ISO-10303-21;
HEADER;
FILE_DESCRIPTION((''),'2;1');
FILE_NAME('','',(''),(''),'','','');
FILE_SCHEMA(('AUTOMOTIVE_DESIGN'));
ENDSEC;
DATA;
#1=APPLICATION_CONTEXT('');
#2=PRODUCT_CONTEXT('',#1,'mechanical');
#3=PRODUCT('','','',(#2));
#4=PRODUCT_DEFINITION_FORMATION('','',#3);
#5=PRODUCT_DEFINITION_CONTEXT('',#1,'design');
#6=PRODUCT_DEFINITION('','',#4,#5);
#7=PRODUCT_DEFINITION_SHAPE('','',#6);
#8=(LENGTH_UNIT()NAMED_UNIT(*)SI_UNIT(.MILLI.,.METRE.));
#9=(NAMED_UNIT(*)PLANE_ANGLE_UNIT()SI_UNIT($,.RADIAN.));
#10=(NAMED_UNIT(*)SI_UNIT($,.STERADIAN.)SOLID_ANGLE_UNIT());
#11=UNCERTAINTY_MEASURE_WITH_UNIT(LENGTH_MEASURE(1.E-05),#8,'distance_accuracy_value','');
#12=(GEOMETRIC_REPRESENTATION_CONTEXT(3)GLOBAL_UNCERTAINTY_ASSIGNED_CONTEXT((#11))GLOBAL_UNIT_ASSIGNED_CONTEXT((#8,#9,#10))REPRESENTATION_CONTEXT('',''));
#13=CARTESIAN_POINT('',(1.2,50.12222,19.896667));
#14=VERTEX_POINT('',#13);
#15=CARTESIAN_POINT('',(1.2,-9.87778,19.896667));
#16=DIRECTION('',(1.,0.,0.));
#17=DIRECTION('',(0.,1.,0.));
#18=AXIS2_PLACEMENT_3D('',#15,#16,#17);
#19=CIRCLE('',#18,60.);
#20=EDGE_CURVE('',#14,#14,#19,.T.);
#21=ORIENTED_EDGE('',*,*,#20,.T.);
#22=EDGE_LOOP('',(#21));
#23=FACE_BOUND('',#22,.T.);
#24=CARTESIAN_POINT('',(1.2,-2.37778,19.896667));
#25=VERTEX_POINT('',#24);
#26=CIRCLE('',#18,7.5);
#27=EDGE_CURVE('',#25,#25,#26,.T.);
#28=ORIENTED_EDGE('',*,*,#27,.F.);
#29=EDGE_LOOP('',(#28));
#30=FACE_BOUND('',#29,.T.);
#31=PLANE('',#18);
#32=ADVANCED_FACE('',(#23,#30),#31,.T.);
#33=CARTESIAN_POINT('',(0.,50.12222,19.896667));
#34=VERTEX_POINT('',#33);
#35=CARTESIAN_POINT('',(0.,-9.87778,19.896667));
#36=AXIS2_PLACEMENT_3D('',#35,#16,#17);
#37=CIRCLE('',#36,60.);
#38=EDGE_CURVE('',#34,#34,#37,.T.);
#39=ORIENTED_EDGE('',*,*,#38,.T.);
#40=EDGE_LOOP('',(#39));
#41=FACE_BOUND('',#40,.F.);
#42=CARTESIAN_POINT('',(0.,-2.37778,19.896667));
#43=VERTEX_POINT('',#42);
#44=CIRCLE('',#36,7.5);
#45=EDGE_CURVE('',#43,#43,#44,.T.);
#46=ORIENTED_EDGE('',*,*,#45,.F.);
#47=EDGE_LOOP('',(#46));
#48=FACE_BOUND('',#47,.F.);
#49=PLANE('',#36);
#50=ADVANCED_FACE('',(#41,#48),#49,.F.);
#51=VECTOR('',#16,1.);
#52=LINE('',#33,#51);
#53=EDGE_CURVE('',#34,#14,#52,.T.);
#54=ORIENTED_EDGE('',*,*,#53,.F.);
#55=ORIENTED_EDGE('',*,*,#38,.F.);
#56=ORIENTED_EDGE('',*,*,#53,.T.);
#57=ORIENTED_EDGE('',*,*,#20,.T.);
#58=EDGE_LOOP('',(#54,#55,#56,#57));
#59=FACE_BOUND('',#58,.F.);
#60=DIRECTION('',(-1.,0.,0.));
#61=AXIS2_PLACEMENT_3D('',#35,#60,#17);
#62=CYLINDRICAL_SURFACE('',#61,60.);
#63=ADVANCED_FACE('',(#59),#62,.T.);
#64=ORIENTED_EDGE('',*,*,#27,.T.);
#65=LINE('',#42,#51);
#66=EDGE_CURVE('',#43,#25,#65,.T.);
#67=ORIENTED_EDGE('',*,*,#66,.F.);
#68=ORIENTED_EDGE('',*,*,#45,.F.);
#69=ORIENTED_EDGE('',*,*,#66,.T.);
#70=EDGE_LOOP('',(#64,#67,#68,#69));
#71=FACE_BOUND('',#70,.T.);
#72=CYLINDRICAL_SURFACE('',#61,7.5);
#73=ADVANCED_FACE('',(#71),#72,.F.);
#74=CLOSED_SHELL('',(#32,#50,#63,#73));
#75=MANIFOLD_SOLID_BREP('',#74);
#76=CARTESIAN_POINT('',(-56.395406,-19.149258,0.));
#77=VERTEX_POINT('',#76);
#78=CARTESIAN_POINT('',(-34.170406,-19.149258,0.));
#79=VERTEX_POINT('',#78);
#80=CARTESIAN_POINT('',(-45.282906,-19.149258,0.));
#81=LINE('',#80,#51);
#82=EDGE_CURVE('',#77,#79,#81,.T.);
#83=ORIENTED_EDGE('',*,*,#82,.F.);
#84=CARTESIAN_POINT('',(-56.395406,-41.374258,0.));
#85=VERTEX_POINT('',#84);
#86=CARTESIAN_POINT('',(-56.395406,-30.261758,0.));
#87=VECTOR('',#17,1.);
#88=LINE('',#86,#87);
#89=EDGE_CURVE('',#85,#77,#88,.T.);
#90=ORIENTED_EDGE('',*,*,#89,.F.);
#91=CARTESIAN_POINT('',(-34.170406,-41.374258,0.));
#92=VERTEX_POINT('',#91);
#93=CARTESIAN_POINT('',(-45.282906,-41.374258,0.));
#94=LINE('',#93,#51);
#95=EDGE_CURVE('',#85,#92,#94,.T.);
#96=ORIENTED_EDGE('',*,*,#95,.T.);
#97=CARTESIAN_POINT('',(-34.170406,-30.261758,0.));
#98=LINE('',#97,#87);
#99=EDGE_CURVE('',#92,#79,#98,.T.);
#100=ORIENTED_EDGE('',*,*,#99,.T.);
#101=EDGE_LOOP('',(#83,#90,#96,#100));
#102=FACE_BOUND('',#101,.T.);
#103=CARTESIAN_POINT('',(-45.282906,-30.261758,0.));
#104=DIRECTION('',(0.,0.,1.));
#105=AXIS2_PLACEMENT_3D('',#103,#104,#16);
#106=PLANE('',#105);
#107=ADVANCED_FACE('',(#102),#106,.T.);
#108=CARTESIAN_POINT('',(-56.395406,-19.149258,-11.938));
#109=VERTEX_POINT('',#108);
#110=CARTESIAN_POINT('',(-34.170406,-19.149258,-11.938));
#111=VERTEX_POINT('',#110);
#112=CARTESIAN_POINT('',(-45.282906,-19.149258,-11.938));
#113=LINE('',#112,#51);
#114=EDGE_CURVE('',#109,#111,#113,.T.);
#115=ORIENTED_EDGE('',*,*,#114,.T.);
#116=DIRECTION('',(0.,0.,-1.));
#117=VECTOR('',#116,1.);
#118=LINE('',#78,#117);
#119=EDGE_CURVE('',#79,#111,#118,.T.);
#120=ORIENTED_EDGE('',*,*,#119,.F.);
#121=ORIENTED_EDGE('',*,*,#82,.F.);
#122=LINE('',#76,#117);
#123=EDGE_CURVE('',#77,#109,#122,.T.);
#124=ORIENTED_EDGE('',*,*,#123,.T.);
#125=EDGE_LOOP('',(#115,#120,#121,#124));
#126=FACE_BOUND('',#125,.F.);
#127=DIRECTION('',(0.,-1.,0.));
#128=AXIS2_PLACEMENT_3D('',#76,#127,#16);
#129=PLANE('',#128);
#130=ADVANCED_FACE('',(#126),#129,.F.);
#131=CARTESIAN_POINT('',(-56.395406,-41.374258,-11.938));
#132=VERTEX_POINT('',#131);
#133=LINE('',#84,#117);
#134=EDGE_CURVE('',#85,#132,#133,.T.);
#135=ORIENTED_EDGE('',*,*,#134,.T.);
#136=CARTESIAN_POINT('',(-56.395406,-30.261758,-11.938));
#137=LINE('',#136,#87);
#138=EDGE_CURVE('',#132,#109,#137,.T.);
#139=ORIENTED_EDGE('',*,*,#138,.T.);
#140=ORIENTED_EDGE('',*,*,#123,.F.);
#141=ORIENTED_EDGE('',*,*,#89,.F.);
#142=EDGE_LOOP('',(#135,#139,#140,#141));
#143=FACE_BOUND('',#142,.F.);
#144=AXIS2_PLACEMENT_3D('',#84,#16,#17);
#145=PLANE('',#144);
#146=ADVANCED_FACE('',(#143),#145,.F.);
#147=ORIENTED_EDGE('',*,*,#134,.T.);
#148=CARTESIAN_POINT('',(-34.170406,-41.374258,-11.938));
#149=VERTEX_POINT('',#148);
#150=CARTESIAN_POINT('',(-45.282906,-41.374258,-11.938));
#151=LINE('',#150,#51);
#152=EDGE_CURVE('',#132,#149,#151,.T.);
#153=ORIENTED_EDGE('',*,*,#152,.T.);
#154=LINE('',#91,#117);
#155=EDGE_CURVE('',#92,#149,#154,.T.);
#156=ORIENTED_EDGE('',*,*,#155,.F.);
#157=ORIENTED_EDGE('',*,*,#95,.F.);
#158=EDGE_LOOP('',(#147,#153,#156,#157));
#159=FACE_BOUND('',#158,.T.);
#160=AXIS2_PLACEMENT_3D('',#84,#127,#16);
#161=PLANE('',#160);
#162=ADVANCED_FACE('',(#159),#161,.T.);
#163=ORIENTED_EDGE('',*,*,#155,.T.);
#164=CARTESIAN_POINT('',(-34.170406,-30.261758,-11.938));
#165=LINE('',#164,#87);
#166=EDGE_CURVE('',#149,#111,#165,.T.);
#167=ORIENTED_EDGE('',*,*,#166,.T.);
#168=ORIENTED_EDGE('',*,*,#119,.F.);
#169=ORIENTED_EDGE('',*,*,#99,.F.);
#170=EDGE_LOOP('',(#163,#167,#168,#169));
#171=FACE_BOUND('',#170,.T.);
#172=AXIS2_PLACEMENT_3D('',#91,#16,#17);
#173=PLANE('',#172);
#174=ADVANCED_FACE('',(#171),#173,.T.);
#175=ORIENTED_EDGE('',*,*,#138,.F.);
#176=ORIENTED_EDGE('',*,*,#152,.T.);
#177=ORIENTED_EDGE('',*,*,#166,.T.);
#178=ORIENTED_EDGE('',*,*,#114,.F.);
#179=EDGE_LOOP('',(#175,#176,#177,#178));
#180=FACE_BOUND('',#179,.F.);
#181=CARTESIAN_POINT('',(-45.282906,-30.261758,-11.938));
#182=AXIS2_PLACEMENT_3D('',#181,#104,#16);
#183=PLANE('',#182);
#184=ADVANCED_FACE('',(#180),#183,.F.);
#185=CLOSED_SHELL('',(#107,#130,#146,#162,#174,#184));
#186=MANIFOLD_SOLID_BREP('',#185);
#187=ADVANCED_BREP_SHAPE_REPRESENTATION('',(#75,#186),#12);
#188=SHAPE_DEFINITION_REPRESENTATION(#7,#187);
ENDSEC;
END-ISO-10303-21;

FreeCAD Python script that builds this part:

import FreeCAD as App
import Part
import Sketcher
from FreeCAD import Vector
Q = App.Units.Quantity

doc = App.newDocument("Part")
body = doc.addObject("PartDesign::Body", "Body")

# Sketch on XY plane
sketch1 = body.newObject("Sketcher::SketchObject", "Sketch")
sketch1.AttachmentSupport = (doc.getObject("XY_Plane"), [""])
sketch1.MapMode = "FlatFace"
sketch1.addGeometry([
    Part.LineSegment(Vector(-56, -19, 0), Vector(-56, -41, 0)),
    Part.LineSegment(Vector(-56, -41, 0), Vector(-34, -41, 0)),
    Part.LineSegment(Vector(-34, -41, 0), Vector(-34, -19, 0)),
    Part.LineSegment(Vector(-34, -19, 0), Vector(-56, -19, 0)),
], False)
sketch1.addConstraint([
    Sketcher.Constraint("Coincident", 0, 2, 1, 1),
    Sketcher.Constraint("Coincident", 1, 2, 2, 1),
    Sketcher.Constraint("Coincident", 2, 2, 3, 1),
    Sketcher.Constraint("Coincident", 3, 2, 0, 1),
    Sketcher.Constraint("Vertical", 0),
    Sketcher.Constraint("Horizontal", 1),
    Sketcher.Constraint("Vertical", 2),
    Sketcher.Constraint("Horizontal", 3),
    Sketcher.Constraint("Equal", 3, 0),
    Sketcher.Constraint("DistanceX", 1, 1, 1, 2, Q("22.225 mm")),
    Sketcher.Constraint("DistanceX", 0, 2, -1, 1, Q("56.395406 mm")),
    Sketcher.Constraint("DistanceY", 0, 2, -1, 1, Q("41.374258 mm")),
])
pad1 = body.newObject("PartDesign::Pad", "Pad")
pad1.Profile = sketch1
pad1.Length = 11.938
pad1.Reversed = True
body2 = doc.addObject("PartDesign::Body", "Body001")

# Sketch on YZ plane
sketch2 = body2.newObject("Sketcher::SketchObject", "Sketch001")
sketch2.AttachmentSupport = (doc.getObject("YZ_Plane001"), [""])
sketch2.MapMode = "FlatFace"
sketch2.addGeometry([
    Part.Circle(Vector(-10, 20, 0), Vector(0, 0, 1), 60),
    Part.Circle(Vector(-10, 20, 0), Vector(0, 0, 1), 8),
], False)
sketch2.addConstraint([
    Sketcher.Constraint("Coincident", 1, 3, 0, 3),
    Sketcher.Constraint("Diameter", 0, Q("120 mm")),
    Sketcher.Constraint("Diameter", 1, Q("15 mm")),
    Sketcher.Constraint("DistanceX", 0, 3, -1, 1, Q("9.87778 mm")),
    Sketcher.Constraint("DistanceY", -1, 1, 0, 3, Q("19.896667 mm")),
])
pad2 = body2.newObject("PartDesign::Pad", "Pad001")
pad2.Profile = sketch2
pad2.Length = 1.2

doc.recompute()
